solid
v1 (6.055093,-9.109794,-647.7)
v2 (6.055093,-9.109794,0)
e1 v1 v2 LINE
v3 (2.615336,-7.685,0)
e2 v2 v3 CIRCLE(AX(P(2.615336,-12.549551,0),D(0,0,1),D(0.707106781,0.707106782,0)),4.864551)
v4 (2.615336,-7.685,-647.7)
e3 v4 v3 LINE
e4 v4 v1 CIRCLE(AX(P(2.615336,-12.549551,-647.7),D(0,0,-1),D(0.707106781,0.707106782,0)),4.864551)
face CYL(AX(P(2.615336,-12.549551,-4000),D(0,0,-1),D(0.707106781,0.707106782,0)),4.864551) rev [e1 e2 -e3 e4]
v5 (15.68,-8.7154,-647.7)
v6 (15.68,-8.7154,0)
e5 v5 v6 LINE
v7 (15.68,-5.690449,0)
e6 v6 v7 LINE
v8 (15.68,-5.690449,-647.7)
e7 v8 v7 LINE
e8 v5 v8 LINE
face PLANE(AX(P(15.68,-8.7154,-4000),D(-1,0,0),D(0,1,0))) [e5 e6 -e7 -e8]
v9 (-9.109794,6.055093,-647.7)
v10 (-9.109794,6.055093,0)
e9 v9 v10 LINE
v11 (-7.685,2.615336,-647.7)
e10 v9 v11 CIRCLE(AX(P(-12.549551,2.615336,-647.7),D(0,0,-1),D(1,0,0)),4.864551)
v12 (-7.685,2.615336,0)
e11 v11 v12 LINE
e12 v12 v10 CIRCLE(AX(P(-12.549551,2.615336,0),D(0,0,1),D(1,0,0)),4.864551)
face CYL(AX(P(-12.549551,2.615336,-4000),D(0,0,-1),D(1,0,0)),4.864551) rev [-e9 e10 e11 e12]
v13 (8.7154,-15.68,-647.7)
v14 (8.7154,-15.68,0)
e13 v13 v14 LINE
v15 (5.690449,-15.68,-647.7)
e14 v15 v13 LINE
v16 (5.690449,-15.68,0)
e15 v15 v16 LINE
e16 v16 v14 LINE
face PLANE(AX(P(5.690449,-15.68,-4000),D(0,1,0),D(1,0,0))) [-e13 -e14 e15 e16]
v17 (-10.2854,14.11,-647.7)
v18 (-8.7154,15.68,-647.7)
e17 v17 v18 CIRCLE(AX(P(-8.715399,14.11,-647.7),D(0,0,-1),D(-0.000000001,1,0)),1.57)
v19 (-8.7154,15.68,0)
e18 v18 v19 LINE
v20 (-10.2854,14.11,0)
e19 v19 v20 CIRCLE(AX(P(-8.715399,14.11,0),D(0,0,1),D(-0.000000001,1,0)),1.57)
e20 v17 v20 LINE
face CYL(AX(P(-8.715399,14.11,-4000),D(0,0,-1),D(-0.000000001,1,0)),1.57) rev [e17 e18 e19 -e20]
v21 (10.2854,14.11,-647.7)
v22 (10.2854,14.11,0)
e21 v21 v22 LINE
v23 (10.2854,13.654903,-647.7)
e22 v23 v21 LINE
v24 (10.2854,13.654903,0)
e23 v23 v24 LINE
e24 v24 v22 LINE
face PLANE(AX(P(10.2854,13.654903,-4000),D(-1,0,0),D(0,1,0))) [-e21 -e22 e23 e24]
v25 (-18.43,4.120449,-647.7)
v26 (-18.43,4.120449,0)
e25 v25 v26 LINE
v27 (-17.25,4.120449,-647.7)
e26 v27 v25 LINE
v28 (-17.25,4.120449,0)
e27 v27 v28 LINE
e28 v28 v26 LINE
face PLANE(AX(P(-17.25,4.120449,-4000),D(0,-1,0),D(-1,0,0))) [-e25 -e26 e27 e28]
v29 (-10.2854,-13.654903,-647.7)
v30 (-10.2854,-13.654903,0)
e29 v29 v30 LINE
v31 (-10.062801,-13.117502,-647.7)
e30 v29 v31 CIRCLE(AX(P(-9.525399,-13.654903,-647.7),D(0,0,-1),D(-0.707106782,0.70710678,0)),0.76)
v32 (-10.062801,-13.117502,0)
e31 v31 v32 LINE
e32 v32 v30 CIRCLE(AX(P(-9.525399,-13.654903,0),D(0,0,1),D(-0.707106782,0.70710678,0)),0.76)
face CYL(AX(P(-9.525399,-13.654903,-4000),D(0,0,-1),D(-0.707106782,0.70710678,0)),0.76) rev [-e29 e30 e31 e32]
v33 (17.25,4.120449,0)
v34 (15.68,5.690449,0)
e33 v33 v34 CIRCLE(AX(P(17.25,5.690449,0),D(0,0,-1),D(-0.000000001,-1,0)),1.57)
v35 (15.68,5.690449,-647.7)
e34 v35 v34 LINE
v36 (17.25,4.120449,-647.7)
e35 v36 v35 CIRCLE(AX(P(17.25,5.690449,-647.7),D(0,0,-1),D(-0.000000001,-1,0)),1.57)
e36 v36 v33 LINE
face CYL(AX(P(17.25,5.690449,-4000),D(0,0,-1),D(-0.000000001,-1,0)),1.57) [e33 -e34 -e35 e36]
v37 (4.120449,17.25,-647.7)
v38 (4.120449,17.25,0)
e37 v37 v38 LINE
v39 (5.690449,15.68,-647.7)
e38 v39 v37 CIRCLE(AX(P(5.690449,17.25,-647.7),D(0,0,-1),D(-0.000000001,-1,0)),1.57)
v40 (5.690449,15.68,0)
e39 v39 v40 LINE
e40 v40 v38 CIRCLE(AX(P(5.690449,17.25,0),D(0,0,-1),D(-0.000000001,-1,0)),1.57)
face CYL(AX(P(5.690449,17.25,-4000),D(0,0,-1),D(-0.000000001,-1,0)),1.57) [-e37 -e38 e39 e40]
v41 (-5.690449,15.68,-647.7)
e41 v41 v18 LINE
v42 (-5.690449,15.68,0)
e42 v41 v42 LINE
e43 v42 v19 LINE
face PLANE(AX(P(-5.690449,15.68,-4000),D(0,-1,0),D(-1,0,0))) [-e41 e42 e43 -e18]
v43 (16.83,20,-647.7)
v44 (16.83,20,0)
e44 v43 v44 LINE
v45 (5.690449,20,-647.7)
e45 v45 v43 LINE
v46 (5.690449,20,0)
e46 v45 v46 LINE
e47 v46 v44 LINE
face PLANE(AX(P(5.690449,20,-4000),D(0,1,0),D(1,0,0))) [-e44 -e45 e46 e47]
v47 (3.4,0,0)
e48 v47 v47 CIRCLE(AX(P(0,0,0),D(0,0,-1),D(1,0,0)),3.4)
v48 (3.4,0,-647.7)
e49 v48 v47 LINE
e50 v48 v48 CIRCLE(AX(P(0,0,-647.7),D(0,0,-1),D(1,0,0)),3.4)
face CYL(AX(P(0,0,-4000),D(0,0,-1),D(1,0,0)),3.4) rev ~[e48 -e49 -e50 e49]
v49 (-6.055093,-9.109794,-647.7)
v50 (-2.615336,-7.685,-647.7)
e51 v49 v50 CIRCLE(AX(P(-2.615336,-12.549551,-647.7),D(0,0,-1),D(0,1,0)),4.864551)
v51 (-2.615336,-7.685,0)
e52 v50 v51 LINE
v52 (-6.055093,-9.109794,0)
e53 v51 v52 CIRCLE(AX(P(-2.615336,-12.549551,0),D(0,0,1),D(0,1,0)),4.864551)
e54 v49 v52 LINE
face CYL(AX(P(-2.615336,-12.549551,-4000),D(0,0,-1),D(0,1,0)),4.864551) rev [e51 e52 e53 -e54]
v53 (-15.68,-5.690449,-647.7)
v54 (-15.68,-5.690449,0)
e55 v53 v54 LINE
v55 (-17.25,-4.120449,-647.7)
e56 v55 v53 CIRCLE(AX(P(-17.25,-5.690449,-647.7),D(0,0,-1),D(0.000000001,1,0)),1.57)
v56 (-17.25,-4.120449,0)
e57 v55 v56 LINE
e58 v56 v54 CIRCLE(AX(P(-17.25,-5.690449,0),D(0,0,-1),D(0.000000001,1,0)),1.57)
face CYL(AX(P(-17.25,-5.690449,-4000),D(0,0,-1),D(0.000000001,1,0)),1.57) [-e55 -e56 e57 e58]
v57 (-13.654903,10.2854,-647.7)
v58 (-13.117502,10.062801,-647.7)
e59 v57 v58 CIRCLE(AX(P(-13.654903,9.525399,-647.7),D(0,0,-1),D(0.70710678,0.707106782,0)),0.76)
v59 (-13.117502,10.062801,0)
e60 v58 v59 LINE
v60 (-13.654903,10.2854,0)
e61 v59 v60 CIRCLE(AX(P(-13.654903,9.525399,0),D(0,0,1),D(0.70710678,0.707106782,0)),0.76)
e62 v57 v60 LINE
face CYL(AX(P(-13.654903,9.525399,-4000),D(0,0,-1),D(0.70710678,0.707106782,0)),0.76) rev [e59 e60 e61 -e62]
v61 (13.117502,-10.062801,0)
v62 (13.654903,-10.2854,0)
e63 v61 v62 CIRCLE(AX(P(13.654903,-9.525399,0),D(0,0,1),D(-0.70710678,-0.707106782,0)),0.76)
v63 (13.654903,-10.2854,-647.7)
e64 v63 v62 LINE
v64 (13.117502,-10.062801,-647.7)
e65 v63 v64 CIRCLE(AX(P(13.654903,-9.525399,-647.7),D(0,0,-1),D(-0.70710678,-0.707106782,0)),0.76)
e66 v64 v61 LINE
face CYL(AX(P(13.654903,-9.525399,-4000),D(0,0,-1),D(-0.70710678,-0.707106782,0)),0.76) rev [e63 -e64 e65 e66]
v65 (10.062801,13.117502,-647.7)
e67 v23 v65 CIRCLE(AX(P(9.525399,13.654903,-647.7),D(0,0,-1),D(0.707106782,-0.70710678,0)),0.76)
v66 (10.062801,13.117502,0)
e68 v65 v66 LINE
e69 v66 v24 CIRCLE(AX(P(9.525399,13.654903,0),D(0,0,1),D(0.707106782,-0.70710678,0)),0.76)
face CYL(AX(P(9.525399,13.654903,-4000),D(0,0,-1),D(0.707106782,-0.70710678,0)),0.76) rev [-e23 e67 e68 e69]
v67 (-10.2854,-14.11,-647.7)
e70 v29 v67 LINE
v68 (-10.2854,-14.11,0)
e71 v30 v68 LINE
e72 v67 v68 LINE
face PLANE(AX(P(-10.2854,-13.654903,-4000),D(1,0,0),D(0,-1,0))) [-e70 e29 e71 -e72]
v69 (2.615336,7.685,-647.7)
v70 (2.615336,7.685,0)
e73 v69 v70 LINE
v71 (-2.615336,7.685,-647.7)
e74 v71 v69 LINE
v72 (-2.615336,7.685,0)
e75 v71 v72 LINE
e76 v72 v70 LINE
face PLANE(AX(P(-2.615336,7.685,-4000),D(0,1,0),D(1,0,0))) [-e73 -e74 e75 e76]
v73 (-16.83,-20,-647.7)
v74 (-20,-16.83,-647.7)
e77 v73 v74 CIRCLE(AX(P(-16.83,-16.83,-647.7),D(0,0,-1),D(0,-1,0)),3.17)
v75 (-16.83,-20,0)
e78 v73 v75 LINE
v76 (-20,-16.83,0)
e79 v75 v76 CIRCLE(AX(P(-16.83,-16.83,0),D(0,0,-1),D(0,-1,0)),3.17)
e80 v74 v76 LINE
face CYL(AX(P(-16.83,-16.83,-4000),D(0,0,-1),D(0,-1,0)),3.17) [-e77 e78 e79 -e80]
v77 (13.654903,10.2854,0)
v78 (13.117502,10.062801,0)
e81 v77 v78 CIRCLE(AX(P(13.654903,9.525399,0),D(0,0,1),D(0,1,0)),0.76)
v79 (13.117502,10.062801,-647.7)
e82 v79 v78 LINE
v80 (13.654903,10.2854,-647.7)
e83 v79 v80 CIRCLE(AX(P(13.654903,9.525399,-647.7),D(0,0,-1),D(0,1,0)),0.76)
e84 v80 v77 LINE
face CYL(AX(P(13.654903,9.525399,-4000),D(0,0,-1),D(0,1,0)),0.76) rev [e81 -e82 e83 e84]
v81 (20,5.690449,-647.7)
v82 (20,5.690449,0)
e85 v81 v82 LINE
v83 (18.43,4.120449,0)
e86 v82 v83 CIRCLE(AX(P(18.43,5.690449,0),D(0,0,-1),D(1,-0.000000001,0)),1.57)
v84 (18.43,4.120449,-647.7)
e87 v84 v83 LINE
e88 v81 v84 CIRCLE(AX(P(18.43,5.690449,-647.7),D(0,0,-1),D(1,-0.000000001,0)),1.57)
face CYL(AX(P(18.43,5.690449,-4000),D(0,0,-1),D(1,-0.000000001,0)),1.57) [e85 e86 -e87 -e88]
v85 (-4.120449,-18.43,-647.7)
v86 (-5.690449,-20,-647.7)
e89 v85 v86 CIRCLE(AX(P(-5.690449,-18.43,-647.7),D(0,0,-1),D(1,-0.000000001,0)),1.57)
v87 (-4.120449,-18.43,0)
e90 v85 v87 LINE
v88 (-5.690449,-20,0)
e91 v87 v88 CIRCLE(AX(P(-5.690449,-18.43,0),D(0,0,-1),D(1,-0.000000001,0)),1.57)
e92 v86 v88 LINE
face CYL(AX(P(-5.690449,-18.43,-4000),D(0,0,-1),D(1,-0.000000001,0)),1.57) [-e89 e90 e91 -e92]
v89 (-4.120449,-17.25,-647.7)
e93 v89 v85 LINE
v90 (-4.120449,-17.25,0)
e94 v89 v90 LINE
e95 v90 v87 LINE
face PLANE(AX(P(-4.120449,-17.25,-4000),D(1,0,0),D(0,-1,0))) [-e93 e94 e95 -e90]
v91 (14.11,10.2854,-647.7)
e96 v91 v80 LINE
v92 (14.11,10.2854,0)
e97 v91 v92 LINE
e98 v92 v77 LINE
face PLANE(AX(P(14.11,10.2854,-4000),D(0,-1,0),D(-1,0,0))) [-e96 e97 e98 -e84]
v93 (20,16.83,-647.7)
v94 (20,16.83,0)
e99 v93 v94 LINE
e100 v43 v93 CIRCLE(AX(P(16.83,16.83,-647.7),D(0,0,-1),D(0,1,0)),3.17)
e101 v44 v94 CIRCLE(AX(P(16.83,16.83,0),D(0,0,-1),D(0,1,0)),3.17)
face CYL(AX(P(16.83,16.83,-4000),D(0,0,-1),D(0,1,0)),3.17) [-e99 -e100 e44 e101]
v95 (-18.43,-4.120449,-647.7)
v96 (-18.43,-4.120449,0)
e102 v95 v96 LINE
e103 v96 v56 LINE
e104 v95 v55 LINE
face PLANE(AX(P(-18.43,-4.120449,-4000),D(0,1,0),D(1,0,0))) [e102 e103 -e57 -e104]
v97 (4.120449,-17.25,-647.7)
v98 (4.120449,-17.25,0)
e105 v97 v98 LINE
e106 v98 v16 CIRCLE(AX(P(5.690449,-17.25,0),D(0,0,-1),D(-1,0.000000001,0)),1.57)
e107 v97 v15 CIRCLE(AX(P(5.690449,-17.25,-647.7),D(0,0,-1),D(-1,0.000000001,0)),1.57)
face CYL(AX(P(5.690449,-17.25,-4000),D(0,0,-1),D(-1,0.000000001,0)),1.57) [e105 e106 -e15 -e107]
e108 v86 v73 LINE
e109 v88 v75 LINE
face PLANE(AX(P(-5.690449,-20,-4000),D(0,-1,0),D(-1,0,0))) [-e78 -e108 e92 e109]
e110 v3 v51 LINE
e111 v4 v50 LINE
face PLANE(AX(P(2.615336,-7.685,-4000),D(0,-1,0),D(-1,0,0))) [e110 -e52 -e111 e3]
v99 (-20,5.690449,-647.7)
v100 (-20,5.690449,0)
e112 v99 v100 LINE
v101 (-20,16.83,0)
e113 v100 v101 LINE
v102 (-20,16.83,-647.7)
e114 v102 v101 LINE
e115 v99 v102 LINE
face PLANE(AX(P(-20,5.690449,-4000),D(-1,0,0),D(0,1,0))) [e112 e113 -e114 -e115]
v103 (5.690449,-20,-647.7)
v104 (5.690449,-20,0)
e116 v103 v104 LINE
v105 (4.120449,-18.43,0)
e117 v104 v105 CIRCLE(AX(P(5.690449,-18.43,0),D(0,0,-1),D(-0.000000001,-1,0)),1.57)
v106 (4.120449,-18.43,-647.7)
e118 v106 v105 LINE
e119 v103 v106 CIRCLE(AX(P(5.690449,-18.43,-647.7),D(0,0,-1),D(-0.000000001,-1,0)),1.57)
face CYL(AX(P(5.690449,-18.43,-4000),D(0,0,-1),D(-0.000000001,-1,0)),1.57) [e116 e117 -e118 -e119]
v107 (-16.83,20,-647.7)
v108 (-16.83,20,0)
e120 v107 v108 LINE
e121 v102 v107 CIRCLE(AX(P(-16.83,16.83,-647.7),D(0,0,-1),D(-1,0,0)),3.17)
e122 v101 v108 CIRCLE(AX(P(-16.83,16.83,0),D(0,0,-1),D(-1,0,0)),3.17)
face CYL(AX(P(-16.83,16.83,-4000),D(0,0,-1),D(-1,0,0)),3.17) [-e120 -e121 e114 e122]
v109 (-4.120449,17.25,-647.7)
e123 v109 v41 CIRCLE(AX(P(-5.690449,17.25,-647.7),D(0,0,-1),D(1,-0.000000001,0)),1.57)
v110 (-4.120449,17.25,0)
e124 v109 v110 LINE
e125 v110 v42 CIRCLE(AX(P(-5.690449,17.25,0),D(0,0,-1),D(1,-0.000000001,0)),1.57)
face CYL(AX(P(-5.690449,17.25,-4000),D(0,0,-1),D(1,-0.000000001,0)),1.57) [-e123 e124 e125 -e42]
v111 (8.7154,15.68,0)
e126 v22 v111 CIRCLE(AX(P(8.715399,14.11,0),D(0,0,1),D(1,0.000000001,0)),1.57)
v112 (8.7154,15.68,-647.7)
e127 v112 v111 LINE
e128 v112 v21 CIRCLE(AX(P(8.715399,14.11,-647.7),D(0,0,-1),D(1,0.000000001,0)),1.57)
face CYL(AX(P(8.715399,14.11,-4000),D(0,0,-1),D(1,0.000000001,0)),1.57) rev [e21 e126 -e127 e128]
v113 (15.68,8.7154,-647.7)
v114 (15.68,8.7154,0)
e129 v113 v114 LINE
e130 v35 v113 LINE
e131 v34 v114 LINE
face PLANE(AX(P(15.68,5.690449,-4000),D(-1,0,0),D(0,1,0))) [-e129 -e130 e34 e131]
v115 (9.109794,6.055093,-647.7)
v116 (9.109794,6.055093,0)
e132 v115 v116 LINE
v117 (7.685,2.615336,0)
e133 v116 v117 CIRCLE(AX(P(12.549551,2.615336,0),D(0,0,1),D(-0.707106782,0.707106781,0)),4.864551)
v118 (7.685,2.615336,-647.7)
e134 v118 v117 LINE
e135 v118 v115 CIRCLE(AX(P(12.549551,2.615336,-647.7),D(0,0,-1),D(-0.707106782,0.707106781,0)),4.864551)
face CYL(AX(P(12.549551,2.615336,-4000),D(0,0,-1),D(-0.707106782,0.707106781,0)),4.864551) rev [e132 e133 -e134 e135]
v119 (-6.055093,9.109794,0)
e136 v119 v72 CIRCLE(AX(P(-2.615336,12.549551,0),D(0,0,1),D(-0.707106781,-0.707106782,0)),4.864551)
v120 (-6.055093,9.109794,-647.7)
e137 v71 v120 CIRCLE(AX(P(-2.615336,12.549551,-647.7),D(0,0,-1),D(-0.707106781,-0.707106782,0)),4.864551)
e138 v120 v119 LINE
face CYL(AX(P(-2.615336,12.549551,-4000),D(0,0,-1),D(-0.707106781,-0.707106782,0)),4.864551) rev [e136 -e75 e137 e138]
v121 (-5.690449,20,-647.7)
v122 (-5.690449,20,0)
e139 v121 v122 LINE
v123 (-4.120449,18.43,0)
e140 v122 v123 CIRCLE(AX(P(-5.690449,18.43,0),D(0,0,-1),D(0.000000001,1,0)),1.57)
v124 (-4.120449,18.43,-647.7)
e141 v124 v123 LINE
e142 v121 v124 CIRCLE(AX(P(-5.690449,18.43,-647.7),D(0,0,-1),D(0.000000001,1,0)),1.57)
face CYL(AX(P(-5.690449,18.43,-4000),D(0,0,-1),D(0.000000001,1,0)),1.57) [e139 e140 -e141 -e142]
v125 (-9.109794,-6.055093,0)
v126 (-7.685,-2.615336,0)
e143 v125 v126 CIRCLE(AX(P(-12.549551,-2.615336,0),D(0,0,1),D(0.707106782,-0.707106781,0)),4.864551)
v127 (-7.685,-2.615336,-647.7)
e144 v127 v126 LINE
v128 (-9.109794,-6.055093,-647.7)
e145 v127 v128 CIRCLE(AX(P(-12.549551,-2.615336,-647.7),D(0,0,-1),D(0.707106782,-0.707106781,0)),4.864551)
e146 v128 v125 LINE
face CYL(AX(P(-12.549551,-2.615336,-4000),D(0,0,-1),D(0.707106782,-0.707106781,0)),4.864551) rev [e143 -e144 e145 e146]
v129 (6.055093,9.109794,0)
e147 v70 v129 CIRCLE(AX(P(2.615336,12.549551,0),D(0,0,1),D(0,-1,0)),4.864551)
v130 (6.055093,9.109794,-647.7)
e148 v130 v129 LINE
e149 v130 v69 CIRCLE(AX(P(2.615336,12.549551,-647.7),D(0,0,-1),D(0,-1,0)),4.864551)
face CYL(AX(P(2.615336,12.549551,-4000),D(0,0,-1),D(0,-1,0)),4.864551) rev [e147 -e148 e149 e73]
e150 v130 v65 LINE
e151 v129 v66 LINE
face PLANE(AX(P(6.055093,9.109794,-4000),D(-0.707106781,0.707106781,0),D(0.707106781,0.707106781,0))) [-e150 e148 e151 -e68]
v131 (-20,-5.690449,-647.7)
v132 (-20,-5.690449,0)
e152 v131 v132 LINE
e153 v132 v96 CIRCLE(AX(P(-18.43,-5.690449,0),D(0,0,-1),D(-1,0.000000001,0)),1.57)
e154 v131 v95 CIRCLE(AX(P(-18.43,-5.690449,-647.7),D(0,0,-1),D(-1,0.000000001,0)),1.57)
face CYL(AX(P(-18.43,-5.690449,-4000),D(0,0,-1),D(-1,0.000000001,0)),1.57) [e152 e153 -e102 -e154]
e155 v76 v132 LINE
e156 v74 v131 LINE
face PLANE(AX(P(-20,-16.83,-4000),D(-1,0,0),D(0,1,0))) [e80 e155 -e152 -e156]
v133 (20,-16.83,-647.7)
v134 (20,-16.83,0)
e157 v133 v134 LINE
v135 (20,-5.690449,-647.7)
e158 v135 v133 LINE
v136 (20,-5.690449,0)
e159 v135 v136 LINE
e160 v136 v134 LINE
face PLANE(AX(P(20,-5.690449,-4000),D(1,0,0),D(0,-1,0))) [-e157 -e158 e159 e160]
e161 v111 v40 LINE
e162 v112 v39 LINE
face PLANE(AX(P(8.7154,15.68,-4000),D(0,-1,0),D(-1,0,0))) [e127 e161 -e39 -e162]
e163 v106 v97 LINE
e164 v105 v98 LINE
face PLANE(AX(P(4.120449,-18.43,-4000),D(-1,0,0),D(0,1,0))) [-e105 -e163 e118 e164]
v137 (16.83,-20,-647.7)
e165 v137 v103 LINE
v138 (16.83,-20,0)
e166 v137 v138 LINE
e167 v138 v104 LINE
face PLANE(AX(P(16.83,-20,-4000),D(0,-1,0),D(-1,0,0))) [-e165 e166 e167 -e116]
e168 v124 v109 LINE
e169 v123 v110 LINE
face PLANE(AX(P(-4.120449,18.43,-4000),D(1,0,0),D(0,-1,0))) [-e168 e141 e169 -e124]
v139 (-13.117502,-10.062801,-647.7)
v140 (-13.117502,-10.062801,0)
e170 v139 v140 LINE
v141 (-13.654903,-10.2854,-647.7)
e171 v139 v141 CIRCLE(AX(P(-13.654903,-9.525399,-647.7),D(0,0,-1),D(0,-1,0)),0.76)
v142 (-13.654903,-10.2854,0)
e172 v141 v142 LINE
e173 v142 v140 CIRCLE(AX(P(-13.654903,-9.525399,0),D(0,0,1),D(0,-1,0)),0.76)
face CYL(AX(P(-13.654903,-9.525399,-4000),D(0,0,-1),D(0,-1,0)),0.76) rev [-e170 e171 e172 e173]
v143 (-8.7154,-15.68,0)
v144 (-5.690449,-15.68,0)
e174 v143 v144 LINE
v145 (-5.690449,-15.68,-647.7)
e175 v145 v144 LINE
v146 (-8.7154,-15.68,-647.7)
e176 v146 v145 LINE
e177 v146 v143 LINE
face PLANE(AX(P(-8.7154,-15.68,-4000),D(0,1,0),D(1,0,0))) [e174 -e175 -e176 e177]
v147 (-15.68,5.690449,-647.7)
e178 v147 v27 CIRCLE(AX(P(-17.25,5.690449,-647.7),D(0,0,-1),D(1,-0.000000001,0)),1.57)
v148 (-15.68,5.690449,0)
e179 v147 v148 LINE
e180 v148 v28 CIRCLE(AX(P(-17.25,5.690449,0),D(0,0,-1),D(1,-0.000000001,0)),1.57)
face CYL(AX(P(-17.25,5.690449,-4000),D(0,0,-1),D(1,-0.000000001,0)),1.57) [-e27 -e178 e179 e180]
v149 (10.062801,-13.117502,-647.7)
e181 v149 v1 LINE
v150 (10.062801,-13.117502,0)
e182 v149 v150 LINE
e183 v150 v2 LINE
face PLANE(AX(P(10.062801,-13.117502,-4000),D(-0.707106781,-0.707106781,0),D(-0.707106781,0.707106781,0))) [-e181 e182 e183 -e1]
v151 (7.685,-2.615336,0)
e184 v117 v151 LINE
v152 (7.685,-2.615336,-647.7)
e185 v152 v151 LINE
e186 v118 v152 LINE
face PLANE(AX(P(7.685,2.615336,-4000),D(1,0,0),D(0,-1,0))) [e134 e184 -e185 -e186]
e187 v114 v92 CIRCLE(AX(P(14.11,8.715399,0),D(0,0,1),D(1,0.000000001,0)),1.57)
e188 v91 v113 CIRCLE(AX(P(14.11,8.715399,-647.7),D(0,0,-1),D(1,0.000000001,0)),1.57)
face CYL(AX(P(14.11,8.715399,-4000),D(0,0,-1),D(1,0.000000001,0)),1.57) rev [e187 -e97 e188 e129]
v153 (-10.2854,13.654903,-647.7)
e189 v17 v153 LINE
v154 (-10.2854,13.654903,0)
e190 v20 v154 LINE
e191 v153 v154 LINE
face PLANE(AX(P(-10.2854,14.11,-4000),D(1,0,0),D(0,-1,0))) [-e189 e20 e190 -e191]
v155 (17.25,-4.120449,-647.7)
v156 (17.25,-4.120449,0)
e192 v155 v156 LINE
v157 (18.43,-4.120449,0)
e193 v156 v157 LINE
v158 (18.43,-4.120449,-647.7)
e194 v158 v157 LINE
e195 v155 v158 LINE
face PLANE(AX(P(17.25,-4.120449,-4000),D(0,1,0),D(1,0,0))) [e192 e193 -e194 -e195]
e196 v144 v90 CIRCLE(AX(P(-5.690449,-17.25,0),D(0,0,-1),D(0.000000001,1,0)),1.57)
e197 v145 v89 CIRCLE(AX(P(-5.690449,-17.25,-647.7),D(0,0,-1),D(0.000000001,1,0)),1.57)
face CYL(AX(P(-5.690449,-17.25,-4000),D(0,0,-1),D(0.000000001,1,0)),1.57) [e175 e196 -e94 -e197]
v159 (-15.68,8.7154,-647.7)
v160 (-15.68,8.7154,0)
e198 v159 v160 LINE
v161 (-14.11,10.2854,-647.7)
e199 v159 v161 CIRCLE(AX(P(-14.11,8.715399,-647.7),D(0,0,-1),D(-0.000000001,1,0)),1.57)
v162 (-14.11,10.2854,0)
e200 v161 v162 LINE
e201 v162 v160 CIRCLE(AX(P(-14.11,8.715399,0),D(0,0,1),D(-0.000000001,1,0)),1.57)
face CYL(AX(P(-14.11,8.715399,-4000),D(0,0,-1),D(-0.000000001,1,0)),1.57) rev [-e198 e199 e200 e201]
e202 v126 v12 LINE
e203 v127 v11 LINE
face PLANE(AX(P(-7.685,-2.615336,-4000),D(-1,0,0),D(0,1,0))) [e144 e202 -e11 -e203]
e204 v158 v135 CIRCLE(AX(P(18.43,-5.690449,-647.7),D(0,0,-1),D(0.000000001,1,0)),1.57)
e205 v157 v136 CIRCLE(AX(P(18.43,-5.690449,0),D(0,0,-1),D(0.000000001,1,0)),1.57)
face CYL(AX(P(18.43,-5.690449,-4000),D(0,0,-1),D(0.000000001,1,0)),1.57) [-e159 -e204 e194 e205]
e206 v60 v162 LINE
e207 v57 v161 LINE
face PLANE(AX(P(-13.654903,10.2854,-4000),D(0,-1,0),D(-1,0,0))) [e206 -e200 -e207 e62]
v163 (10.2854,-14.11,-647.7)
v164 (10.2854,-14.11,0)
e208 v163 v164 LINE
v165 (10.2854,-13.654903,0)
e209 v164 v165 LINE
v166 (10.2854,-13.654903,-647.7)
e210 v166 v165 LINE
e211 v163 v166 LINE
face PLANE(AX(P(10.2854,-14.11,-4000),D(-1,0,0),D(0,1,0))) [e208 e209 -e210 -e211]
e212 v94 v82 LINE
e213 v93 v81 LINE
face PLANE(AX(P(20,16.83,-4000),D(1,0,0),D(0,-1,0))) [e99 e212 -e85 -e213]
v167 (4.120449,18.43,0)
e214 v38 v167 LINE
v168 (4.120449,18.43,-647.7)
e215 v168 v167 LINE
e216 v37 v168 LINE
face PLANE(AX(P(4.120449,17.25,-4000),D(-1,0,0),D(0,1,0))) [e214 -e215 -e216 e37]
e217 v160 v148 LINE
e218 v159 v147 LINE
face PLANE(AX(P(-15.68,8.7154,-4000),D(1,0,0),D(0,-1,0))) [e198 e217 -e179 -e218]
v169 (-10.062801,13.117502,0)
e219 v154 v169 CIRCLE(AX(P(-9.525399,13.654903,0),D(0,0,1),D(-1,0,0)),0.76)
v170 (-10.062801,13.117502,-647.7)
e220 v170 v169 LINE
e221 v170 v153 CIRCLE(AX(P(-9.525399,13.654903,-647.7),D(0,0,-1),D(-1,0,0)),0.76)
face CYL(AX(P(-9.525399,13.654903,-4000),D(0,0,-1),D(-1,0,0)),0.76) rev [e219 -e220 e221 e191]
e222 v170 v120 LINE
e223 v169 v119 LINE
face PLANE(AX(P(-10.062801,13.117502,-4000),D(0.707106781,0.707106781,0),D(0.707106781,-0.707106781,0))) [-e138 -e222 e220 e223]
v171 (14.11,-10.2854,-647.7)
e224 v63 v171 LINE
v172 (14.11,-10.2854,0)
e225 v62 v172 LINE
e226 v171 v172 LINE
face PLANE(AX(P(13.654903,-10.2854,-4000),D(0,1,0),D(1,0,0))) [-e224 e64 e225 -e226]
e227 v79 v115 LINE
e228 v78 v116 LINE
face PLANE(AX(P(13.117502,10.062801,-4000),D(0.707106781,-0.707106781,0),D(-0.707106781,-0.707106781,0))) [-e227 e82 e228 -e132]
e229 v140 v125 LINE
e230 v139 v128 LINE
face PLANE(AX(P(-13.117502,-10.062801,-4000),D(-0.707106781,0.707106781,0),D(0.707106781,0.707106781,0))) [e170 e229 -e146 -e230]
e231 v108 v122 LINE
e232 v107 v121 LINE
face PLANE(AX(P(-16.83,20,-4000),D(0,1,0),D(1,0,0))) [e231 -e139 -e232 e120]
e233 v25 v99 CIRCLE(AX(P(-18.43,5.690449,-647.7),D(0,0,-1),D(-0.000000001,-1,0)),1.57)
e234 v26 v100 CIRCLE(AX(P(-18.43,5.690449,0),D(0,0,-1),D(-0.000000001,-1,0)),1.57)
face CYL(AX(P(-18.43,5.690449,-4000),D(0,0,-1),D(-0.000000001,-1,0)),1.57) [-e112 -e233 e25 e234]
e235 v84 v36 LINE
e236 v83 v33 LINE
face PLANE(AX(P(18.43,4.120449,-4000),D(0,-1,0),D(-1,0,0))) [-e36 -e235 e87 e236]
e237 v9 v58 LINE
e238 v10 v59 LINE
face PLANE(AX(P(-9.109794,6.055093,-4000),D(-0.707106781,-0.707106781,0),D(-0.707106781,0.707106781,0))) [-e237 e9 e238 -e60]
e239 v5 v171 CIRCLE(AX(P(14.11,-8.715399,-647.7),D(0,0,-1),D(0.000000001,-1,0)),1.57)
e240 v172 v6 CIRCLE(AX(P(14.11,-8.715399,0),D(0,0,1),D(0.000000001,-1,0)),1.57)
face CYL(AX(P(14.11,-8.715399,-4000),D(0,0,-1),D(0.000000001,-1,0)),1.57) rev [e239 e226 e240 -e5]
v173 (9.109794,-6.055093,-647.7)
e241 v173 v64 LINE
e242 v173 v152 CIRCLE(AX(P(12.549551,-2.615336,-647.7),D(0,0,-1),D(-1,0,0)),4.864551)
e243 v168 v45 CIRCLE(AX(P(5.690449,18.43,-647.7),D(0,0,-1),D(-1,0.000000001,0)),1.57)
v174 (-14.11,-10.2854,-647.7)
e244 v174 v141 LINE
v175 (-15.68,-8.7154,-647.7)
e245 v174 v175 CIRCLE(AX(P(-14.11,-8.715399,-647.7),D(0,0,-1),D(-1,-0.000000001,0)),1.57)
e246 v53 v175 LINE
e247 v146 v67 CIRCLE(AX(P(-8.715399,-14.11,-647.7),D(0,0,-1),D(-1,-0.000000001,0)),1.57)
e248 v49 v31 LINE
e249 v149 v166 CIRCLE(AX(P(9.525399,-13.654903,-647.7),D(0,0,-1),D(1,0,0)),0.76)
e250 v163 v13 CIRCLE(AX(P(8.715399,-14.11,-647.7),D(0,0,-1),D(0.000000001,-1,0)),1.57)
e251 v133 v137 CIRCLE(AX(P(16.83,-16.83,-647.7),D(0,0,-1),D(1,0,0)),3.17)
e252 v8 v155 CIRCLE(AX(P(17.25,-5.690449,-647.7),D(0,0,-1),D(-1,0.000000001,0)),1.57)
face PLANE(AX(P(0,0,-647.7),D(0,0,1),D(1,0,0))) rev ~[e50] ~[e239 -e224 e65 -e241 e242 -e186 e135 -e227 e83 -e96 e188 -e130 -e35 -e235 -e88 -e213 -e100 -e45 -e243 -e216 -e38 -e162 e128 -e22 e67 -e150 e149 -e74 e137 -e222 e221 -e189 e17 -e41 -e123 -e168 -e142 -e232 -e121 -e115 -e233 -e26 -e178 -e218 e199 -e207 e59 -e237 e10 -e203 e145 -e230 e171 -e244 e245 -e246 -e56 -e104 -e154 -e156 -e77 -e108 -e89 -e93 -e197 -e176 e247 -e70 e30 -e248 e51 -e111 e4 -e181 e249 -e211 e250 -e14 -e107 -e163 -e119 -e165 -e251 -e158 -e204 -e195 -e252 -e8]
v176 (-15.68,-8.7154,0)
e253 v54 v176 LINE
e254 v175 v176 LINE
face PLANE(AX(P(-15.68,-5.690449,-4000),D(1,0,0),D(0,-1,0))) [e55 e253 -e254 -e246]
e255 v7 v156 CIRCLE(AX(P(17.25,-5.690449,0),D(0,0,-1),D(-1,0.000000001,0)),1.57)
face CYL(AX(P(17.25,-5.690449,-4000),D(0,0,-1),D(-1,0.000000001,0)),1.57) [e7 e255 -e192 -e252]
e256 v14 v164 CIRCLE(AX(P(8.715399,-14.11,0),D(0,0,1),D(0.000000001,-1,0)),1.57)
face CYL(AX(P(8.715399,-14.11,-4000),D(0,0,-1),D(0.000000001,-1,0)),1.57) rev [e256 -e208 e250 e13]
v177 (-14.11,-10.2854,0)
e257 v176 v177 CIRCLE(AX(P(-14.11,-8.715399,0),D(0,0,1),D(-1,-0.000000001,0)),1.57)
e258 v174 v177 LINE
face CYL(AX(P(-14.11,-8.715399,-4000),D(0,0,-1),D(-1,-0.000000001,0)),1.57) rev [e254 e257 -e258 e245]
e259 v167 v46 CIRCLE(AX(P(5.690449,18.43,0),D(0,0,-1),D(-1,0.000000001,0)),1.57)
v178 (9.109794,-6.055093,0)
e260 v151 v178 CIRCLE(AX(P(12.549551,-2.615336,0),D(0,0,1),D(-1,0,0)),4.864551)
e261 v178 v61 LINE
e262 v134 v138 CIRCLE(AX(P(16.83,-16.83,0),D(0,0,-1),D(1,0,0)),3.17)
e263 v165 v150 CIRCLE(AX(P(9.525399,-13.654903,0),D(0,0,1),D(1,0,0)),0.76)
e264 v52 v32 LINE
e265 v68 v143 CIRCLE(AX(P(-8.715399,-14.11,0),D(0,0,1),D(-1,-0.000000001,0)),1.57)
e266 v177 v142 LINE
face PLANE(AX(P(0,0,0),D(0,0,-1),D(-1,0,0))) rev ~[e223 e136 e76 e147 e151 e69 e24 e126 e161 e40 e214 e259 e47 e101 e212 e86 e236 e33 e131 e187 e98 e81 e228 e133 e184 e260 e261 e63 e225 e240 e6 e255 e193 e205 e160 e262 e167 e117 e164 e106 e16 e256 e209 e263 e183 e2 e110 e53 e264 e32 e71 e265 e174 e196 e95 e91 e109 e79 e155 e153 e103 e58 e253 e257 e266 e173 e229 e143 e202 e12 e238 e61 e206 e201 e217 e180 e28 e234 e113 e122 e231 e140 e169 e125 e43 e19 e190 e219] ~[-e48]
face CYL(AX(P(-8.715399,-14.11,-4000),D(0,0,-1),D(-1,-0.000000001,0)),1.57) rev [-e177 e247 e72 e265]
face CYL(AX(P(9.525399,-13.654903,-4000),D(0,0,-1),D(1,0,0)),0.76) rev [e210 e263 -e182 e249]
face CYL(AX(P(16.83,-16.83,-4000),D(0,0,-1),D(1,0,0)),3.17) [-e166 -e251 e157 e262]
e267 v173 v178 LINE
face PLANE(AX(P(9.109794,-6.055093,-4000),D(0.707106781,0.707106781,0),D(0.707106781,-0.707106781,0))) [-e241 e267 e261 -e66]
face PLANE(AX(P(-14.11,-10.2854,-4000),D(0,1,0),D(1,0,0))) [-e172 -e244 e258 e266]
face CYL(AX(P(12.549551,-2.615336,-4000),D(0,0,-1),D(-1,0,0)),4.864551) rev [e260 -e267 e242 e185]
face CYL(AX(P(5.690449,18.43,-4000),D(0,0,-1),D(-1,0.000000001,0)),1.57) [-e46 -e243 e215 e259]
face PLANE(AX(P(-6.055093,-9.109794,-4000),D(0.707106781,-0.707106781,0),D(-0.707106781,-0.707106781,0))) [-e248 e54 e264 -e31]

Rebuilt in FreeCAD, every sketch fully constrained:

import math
import FreeCAD as App
import Part
import Sketcher

doc = App.newDocument("Part")
body = doc.addObject("PartDesign::Body", "Body")

# Sketch on XY plane
sketch1 = body.newObject("Sketcher::SketchObject", "Sketch")
sketch1.AttachmentSupport = (doc.getObject("XY_Plane"), [""])
sketch1.MapMode = "FlatFace"
sketch1.AttachmentOffset = App.Placement(App.Vector(0, 0, -4000), App.Rotation())
sketch1.addGeometry([
    Part.LineSegment(App.Vector(-16.83, 20, 0), App.Vector(-5.69, 20, 0)),  # 0
    Part.ArcOfCircle(Part.Circle(App.Vector(-5.69, 18.43, 0), App.Vector(0, 0, 1), 1.57), math.radians(0), math.radians(90)),  # 1
    Part.LineSegment(App.Vector(-4.12, 18.43, 0), App.Vector(-4.12, 17.25, 0)),  # 2
    Part.ArcOfCircle(Part.Circle(App.Vector(-5.69, 17.25, 0), App.Vector(0, 0, 1), 1.57), math.radians(-90), math.radians(0)),  # 3
    Part.LineSegment(App.Vector(-5.69, 15.68, 0), App.Vector(-8.72, 15.68, 0)),  # 4
    Part.ArcOfCircle(Part.Circle(App.Vector(-8.72, 14.11, 0), App.Vector(0, 0, 1), 1.57), math.radians(90), math.radians(180)),  # 5
    Part.LineSegment(App.Vector(-10.29, 14.11, 0), App.Vector(-10.29, 13.65, 0)),  # 6
    Part.ArcOfCircle(Part.Circle(App.Vector(-9.53, 13.65, 0), App.Vector(0, 0, 1), 0.76), math.radians(180), math.radians(225)),  # 7
    Part.LineSegment(App.Vector(-10.06, 13.12, 0), App.Vector(-6.06, 9.11, 0)),  # 8
    Part.ArcOfCircle(Part.Circle(App.Vector(-2.62, 12.55, 0), App.Vector(0, 0, 1), 4.86), math.radians(-135), math.radians(-90)),  # 9
    Part.LineSegment(App.Vector(-2.62, 7.68, 0), App.Vector(2.62, 7.68, 0)),  # 10
    Part.ArcOfCircle(Part.Circle(App.Vector(2.62, 12.55, 0), App.Vector(0, 0, 1), 4.86), math.radians(-90), math.radians(-45)),  # 11
    Part.LineSegment(App.Vector(6.06, 9.11, 0), App.Vector(10.06, 13.12, 0)),  # 12
    Part.ArcOfCircle(Part.Circle(App.Vector(9.53, 13.65, 0), App.Vector(0, 0, 1), 0.76), math.radians(-45), math.radians(0)),  # 13
    Part.LineSegment(App.Vector(10.29, 13.65, 0), App.Vector(10.29, 14.11, 0)),  # 14
    Part.ArcOfCircle(Part.Circle(App.Vector(8.72, 14.11, 0), App.Vector(0, 0, 1), 1.57), math.radians(0), math.radians(90)),  # 15
    Part.LineSegment(App.Vector(8.72, 15.68, 0), App.Vector(5.69, 15.68, 0)),  # 16
    Part.ArcOfCircle(Part.Circle(App.Vector(5.69, 17.25, 0), App.Vector(0, 0, 1), 1.57), math.radians(-180), math.radians(-90)),  # 17
    Part.LineSegment(App.Vector(4.12, 17.25, 0), App.Vector(4.12, 18.43, 0)),  # 18
    Part.ArcOfCircle(Part.Circle(App.Vector(5.69, 18.43, 0), App.Vector(0, 0, 1), 1.57), math.radians(90), math.radians(180)),  # 19
    Part.LineSegment(App.Vector(5.69, 20, 0), App.Vector(16.83, 20, 0)),  # 20
    Part.ArcOfCircle(Part.Circle(App.Vector(16.83, 16.83, 0), App.Vector(0, 0, 1), 3.17), math.radians(0), math.radians(90)),  # 21
    Part.LineSegment(App.Vector(20, 16.83, 0), App.Vector(20, 5.69, 0)),  # 22
    Part.ArcOfCircle(Part.Circle(App.Vector(18.43, 5.69, 0), App.Vector(0, 0, 1), 1.57), math.radians(-90), math.radians(0)),  # 23
    Part.LineSegment(App.Vector(18.43, 4.12, 0), App.Vector(17.25, 4.12, 0)),  # 24
    Part.ArcOfCircle(Part.Circle(App.Vector(17.25, 5.69, 0), App.Vector(0, 0, 1), 1.57), math.radians(-180), math.radians(-90)),  # 25
    Part.LineSegment(App.Vector(15.68, 5.69, 0), App.Vector(15.68, 8.72, 0)),  # 26
    Part.ArcOfCircle(Part.Circle(App.Vector(14.11, 8.72, 0), App.Vector(0, 0, 1), 1.57), math.radians(0), math.radians(90)),  # 27
    Part.LineSegment(App.Vector(14.11, 10.29, 0), App.Vector(13.65, 10.29, 0)),  # 28
    Part.ArcOfCircle(Part.Circle(App.Vector(13.65, 9.53, 0), App.Vector(0, 0, 1), 0.76), math.radians(90), math.radians(135)),  # 29
    Part.LineSegment(App.Vector(13.12, 10.06, 0), App.Vector(9.11, 6.06, 0)),  # 30
    Part.ArcOfCircle(Part.Circle(App.Vector(12.55, 2.62, 0), App.Vector(0, 0, 1), 4.86), math.radians(135), math.radians(180)),  # 31
    Part.LineSegment(App.Vector(7.68, 2.62, 0), App.Vector(7.68, -2.62, 0)),  # 32
    Part.ArcOfCircle(Part.Circle(App.Vector(12.55, -2.62, 0), App.Vector(0, 0, 1), 4.86), math.radians(-180), math.radians(-135)),  # 33
    Part.LineSegment(App.Vector(9.11, -6.06, 0), App.Vector(13.12, -10.06, 0)),  # 34
    Part.ArcOfCircle(Part.Circle(App.Vector(13.65, -9.53, 0), App.Vector(0, 0, 1), 0.76), math.radians(-135), math.radians(-90)),  # 35
    Part.LineSegment(App.Vector(13.65, -10.29, 0), App.Vector(14.11, -10.29, 0)),  # 36
    Part.ArcOfCircle(Part.Circle(App.Vector(14.11, -8.72, 0), App.Vector(0, 0, 1), 1.57), math.radians(-90), math.radians(0)),  # 37
    Part.LineSegment(App.Vector(15.68, -8.72, 0), App.Vector(15.68, -5.69, 0)),  # 38
    Part.ArcOfCircle(Part.Circle(App.Vector(17.25, -5.69, 0), App.Vector(0, 0, 1), 1.57), math.radians(90), math.radians(180)),  # 39
    Part.LineSegment(App.Vector(17.25, -4.12, 0), App.Vector(18.43, -4.12, 0)),  # 40
    Part.ArcOfCircle(Part.Circle(App.Vector(18.43, -5.69, 0), App.Vector(0, 0, 1), 1.57), math.radians(0), math.radians(90)),  # 41
    Part.LineSegment(App.Vector(20, -5.69, 0), App.Vector(20, -16.83, 0)),  # 42
    Part.ArcOfCircle(Part.Circle(App.Vector(16.83, -16.83, 0), App.Vector(0, 0, 1), 3.17), math.radians(-90), math.radians(0)),  # 43
    Part.LineSegment(App.Vector(16.83, -20, 0), App.Vector(5.69, -20, 0)),  # 44
    Part.ArcOfCircle(Part.Circle(App.Vector(5.69, -18.43, 0), App.Vector(0, 0, 1), 1.57), math.radians(-180), math.radians(-90)),  # 45
    Part.LineSegment(App.Vector(4.12, -18.43, 0), App.Vector(4.12, -17.25, 0)),  # 46
    Part.ArcOfCircle(Part.Circle(App.Vector(5.69, -17.25, 0), App.Vector(0, 0, 1), 1.57), math.radians(90), math.radians(180)),  # 47
    Part.LineSegment(App.Vector(5.69, -15.68, 0), App.Vector(8.72, -15.68, 0)),  # 48
    Part.ArcOfCircle(Part.Circle(App.Vector(8.72, -14.11, 0), App.Vector(0, 0, 1), 1.57), math.radians(-90), math.radians(0)),  # 49
    Part.LineSegment(App.Vector(10.29, -14.11, 0), App.Vector(10.29, -13.65, 0)),  # 50
    Part.ArcOfCircle(Part.Circle(App.Vector(9.53, -13.65, 0), App.Vector(0, 0, 1), 0.76), math.radians(0), math.radians(45)),  # 51
    Part.LineSegment(App.Vector(10.06, -13.12, 0), App.Vector(6.06, -9.11, 0)),  # 52
    Part.ArcOfCircle(Part.Circle(App.Vector(2.62, -12.55, 0), App.Vector(0, 0, 1), 4.86), math.radians(45), math.radians(90)),  # 53
    Part.LineSegment(App.Vector(2.62, -7.68, 0), App.Vector(-2.62, -7.68, 0)),  # 54
    Part.ArcOfCircle(Part.Circle(App.Vector(-2.62, -12.55, 0), App.Vector(0, 0, 1), 4.86), math.radians(90), math.radians(135)),  # 55
    Part.LineSegment(App.Vector(-6.06, -9.11, 0), App.Vector(-10.06, -13.12, 0)),  # 56
    Part.ArcOfCircle(Part.Circle(App.Vector(-9.53, -13.65, 0), App.Vector(0, 0, 1), 0.76), math.radians(135), math.radians(180)),  # 57
    Part.LineSegment(App.Vector(-10.29, -13.65, 0), App.Vector(-10.29, -14.11, 0)),  # 58
    Part.ArcOfCircle(Part.Circle(App.Vector(-8.72, -14.11, 0), App.Vector(0, 0, 1), 1.57), math.radians(-180), math.radians(-90)),  # 59
    Part.LineSegment(App.Vector(-8.72, -15.68, 0), App.Vector(-5.69, -15.68, 0)),  # 60
    Part.ArcOfCircle(Part.Circle(App.Vector(-5.69, -17.25, 0), App.Vector(0, 0, 1), 1.57), math.radians(0), math.radians(90)),  # 61
    Part.LineSegment(App.Vector(-4.12, -17.25, 0), App.Vector(-4.12, -18.43, 0)),  # 62
    Part.ArcOfCircle(Part.Circle(App.Vector(-5.69, -18.43, 0), App.Vector(0, 0, 1), 1.57), math.radians(-90), math.radians(0)),  # 63
    Part.LineSegment(App.Vector(-5.69, -20, 0), App.Vector(-16.83, -20, 0)),  # 64
    Part.ArcOfCircle(Part.Circle(App.Vector(-16.83, -16.83, 0), App.Vector(0, 0, 1), 3.17), math.radians(-180), math.radians(-90)),  # 65
    Part.LineSegment(App.Vector(-20, -16.83, 0), App.Vector(-20, -5.69, 0)),  # 66
    Part.ArcOfCircle(Part.Circle(App.Vector(-18.43, -5.69, 0), App.Vector(0, 0, 1), 1.57), math.radians(90), math.radians(180)),  # 67
    Part.LineSegment(App.Vector(-18.43, -4.12, 0), App.Vector(-17.25, -4.12, 0)),  # 68
    Part.ArcOfCircle(Part.Circle(App.Vector(-17.25, -5.69, 0), App.Vector(0, 0, 1), 1.57), math.radians(0), math.radians(90)),  # 69
    Part.LineSegment(App.Vector(-15.68, -5.69, 0), App.Vector(-15.68, -8.72, 0)),  # 70
    Part.ArcOfCircle(Part.Circle(App.Vector(-14.11, -8.72, 0), App.Vector(0, 0, 1), 1.57), math.radians(-180), math.radians(-90)),  # 71
    Part.LineSegment(App.Vector(-14.11, -10.29, 0), App.Vector(-13.65, -10.29, 0)),  # 72
    Part.ArcOfCircle(Part.Circle(App.Vector(-13.65, -9.53, 0), App.Vector(0, 0, 1), 0.76), math.radians(-90), math.radians(-45)),  # 73
    Part.LineSegment(App.Vector(-13.12, -10.06, 0), App.Vector(-9.11, -6.06, 0)),  # 74
    Part.ArcOfCircle(Part.Circle(App.Vector(-12.55, -2.62, 0), App.Vector(0, 0, 1), 4.86), math.radians(-45), math.radians(0)),  # 75
    Part.LineSegment(App.Vector(-7.68, -2.62, 0), App.Vector(-7.68, 2.62, 0)),  # 76
    Part.ArcOfCircle(Part.Circle(App.Vector(-12.55, 2.62, 0), App.Vector(0, 0, 1), 4.86), math.radians(0), math.radians(45)),  # 77
    Part.LineSegment(App.Vector(-9.11, 6.06, 0), App.Vector(-13.12, 10.06, 0)),  # 78
    Part.ArcOfCircle(Part.Circle(App.Vector(-13.65, 9.53, 0), App.Vector(0, 0, 1), 0.76), math.radians(45), math.radians(90)),  # 79
    Part.LineSegment(App.Vector(-13.65, 10.29, 0), App.Vector(-14.11, 10.29, 0)),  # 80
    Part.ArcOfCircle(Part.Circle(App.Vector(-14.11, 8.72, 0), App.Vector(0, 0, 1), 1.57), math.radians(90), math.radians(180)),  # 81
    Part.LineSegment(App.Vector(-15.68, 8.72, 0), App.Vector(-15.68, 5.69, 0)),  # 82
    Part.ArcOfCircle(Part.Circle(App.Vector(-17.25, 5.69, 0), App.Vector(0, 0, 1), 1.57), math.radians(-90), math.radians(0)),  # 83
    Part.LineSegment(App.Vector(-17.25, 4.12, 0), App.Vector(-18.43, 4.12, 0)),  # 84
    Part.ArcOfCircle(Part.Circle(App.Vector(-18.43, 5.69, 0), App.Vector(0, 0, 1), 1.57), math.radians(-180), math.radians(-90)),  # 85
    Part.LineSegment(App.Vector(-20, 5.69, 0), App.Vector(-20, 16.83, 0)),  # 86
    Part.ArcOfCircle(Part.Circle(App.Vector(-16.83, 16.83, 0), App.Vector(0, 0, 1), 3.17), math.radians(90), math.radians(180)),  # 87
    Part.Circle(App.Vector(0, 0, 0), App.Vector(0, 0, 1), 3.4),  # 88
], False)
sketch1.addConstraint([
    Sketcher.Constraint("Tangent", 0, 2, 1, 2),
    Sketcher.Constraint("Tangent", 1, 1, 2, 1),
    Sketcher.Constraint("Tangent", 2, 2, 3, 2),
    Sketcher.Constraint("Tangent", 3, 1, 4, 1),
    Sketcher.Constraint("Tangent", 4, 2, 5, 1),
    Sketcher.Constraint("Tangent", 5, 2, 6, 1),
    Sketcher.Constraint("Tangent", 6, 2, 7, 1),
    Sketcher.Constraint("Tangent", 7, 2, 8, 1),
    Sketcher.Constraint("Tangent", 8, 2, 9, 1),
    Sketcher.Constraint("Tangent", 9, 2, 10, 1),
    Sketcher.Constraint("Tangent", 10, 2, 11, 1),
    Sketcher.Constraint("Tangent", 11, 2, 12, 1),
    Sketcher.Constraint("Tangent", 12, 2, 13, 1),
    Sketcher.Constraint("Tangent", 13, 2, 14, 1),
    Sketcher.Constraint("Tangent", 14, 2, 15, 1),
    Sketcher.Constraint("Tangent", 15, 2, 16, 1),
    Sketcher.Constraint("Tangent", 16, 2, 17, 2),
    Sketcher.Constraint("Tangent", 17, 1, 18, 1),
    Sketcher.Constraint("Tangent", 18, 2, 19, 2),
    Sketcher.Constraint("Tangent", 19, 1, 20, 1),
    Sketcher.Constraint("Tangent", 20, 2, 21, 2),
    Sketcher.Constraint("Tangent", 21, 1, 22, 1),
    Sketcher.Constraint("Tangent", 22, 2, 23, 2),
    Sketcher.Constraint("Tangent", 23, 1, 24, 1),
    Sketcher.Constraint("Tangent", 24, 2, 25, 2),
    Sketcher.Constraint("Tangent", 25, 1, 26, 1),
    Sketcher.Constraint("Tangent", 26, 2, 27, 1),
    Sketcher.Constraint("Tangent", 27, 2, 28, 1),
    Sketcher.Constraint("Tangent", 28, 2, 29, 1),
    Sketcher.Constraint("Tangent", 29, 2, 30, 1),
    Sketcher.Constraint("Tangent", 30, 2, 31, 1),
    Sketcher.Constraint("Tangent", 31, 2, 32, 1),
    Sketcher.Constraint("Tangent", 32, 2, 33, 1),
    Sketcher.Constraint("Tangent", 33, 2, 34, 1),
    Sketcher.Constraint("Tangent", 34, 2, 35, 1),
    Sketcher.Constraint("Tangent", 35, 2, 36, 1),
    Sketcher.Constraint("Tangent", 36, 2, 37, 1),
    Sketcher.Constraint("Tangent", 37, 2, 38, 1),
    Sketcher.Constraint("Tangent", 38, 2, 39, 2),
    Sketcher.Constraint("Tangent", 39, 1, 40, 1),
    Sketcher.Constraint("Tangent", 40, 2, 41, 2),
    Sketcher.Constraint("Tangent", 41, 1, 42, 1),
    Sketcher.Constraint("Tangent", 42, 2, 43, 2),
    Sketcher.Constraint("Tangent", 43, 1, 44, 1),
    Sketcher.Constraint("Tangent", 44, 2, 45, 2),
    Sketcher.Constraint("Tangent", 45, 1, 46, 1),
    Sketcher.Constraint("Tangent", 46, 2, 47, 2),
    Sketcher.Constraint("Tangent", 47, 1, 48, 1),
    Sketcher.Constraint("Tangent", 48, 2, 49, 1),
    Sketcher.Constraint("Tangent", 49, 2, 50, 1),
    Sketcher.Constraint("Tangent", 50, 2, 51, 1),
    Sketcher.Constraint("Tangent", 51, 2, 52, 1),
    Sketcher.Constraint("Tangent", 52, 2, 53, 1),
    Sketcher.Constraint("Tangent", 53, 2, 54, 1),
    Sketcher.Constraint("Tangent", 54, 2, 55, 1),
    Sketcher.Constraint("Tangent", 55, 2, 56, 1),
    Sketcher.Constraint("Tangent", 56, 2, 57, 1),
    Sketcher.Constraint("Tangent", 57, 2, 58, 1),
    Sketcher.Constraint("Tangent", 58, 2, 59, 1),
    Sketcher.Constraint("Tangent", 59, 2, 60, 1),
    Sketcher.Constraint("Tangent", 60, 2, 61, 2),
    Sketcher.Constraint("Tangent", 61, 1, 62, 1),
    Sketcher.Constraint("Tangent", 62, 2, 63, 2),
    Sketcher.Constraint("Tangent", 63, 1, 64, 1),
    Sketcher.Constraint("Tangent", 64, 2, 65, 2),
    Sketcher.Constraint("Tangent", 65, 1, 66, 1),
    Sketcher.Constraint("Tangent", 66, 2, 67, 2),
    Sketcher.Constraint("Tangent", 67, 1, 68, 1),
    Sketcher.Constraint("Tangent", 68, 2, 69, 2),
    Sketcher.Constraint("Tangent", 69, 1, 70, 1),
    Sketcher.Constraint("Tangent", 70, 2, 71, 1),
    Sketcher.Constraint("Tangent", 71, 2, 72, 1),
    Sketcher.Constraint("Tangent", 72, 2, 73, 1),
    Sketcher.Constraint("Tangent", 73, 2, 74, 1),
    Sketcher.Constraint("Tangent", 74, 2, 75, 1),
    Sketcher.Constraint("Tangent", 75, 2, 76, 1),
    Sketcher.Constraint("Tangent", 76, 2, 77, 1),
    Sketcher.Constraint("Tangent", 77, 2, 78, 1),
    Sketcher.Constraint("Tangent", 78, 2, 79, 1),
    Sketcher.Constraint("Tangent", 79, 2, 80, 1),
    Sketcher.Constraint("Tangent", 80, 2, 81, 1),
    Sketcher.Constraint("Tangent", 81, 2, 82, 1),
    Sketcher.Constraint("Tangent", 82, 2, 83, 2),
    Sketcher.Constraint("Tangent", 83, 1, 84, 1),
    Sketcher.Constraint("Tangent", 84, 2, 85, 2),
    Sketcher.Constraint("Tangent", 85, 1, 86, 1),
    Sketcher.Constraint("Tangent", 86, 2, 87, 2),
    Sketcher.Constraint("Tangent", 87, 1, 0, 1),
    Sketcher.Constraint("Horizontal", 0),
    Sketcher.Constraint("Vertical", 2),
    Sketcher.Constraint("Horizontal", 4),
    Sketcher.Constraint("Vertical", 6),
    Sketcher.Constraint("Horizontal", 10),
    Sketcher.Constraint("Vertical", 14),
    Sketcher.Constraint("Horizontal", 16),
    Sketcher.Constraint("Vertical", 18),
    Sketcher.Constraint("Horizontal", 20),
    Sketcher.Constraint("Vertical", 22),
    Sketcher.Constraint("Horizontal", 24),
    Sketcher.Constraint("Vertical", 26),
    Sketcher.Constraint("Horizontal", 28),
    Sketcher.Constraint("Vertical", 32),
    Sketcher.Constraint("Horizontal", 36),
    Sketcher.Constraint("Vertical", 38),
    Sketcher.Constraint("Horizontal", 40),
    Sketcher.Constraint("Vertical", 42),
    Sketcher.Constraint("Horizontal", 44),
    Sketcher.Constraint("Vertical", 46),
    Sketcher.Constraint("Horizontal", 48),
    Sketcher.Constraint("Vertical", 50),
    Sketcher.Constraint("Horizontal", 54),
    Sketcher.Constraint("Vertical", 58),
    Sketcher.Constraint("Horizontal", 60),
    Sketcher.Constraint("Vertical", 62),
    Sketcher.Constraint("Horizontal", 64),
    Sketcher.Constraint("Vertical", 66),
    Sketcher.Constraint("Horizontal", 68),
    Sketcher.Constraint("Vertical", 70),
    Sketcher.Constraint("Horizontal", 72),
    Sketcher.Constraint("Vertical", 76),
    Sketcher.Constraint("Horizontal", 80),
    Sketcher.Constraint("Vertical", 82),
    Sketcher.Constraint("Horizontal", 84),
    Sketcher.Constraint("Vertical", 86),
    Sketcher.Constraint("Coincident", 88, 3, -1, 1),
    Sketcher.Constraint("Equal", 1, 3),
    Sketcher.Constraint("Equal", 3, 5),
    Sketcher.Constraint("Equal", 9, 11),
    Sketcher.Constraint("Equal", 7, 13),
    Sketcher.Constraint("Equal", 5, 15),
    Sketcher.Constraint("Equal", 15, 17),
    Sketcher.Constraint("Equal", 17, 19),
    Sketcher.Constraint("Equal", 19, 23),
    Sketcher.Constraint("Equal", 23, 25),
    Sketcher.Constraint("Equal", 25, 27),
    Sketcher.Constraint("Equal", 13, 29),
    Sketcher.Constraint("Equal", 11, 31),
    Sketcher.Constraint("Equal", 31, 33),
    Sketcher.Constraint("Equal", 29, 35),
    Sketcher.Constraint("Equal", 27, 37),
    Sketcher.Constraint("Equal", 37, 39),
    Sketcher.Constraint("Equal", 39, 41),
    Sketcher.Constraint("Equal", 21, 43),
    Sketcher.Constraint("Equal", 41, 45),
    Sketcher.Constraint("Equal", 45, 47),
    Sketcher.Constraint("Equal", 47, 49),
    Sketcher.Constraint("Equal", 35, 51),
    Sketcher.Constraint("Equal", 33, 53),
    Sketcher.Constraint("Equal", 53, 55),
    Sketcher.Constraint("Equal", 51, 57),
    Sketcher.Constraint("Equal", 49, 59),
    Sketcher.Constraint("Equal", 59, 61),
    Sketcher.Constraint("Equal", 61, 63),
    Sketcher.Constraint("Equal", 43, 65),
    Sketcher.Constraint("Equal", 63, 67),
    Sketcher.Constraint("Equal", 67, 69),
    Sketcher.Constraint("Equal", 69, 71),
    Sketcher.Constraint("Equal", 57, 73),
    Sketcher.Constraint("Equal", 55, 75),
    Sketcher.Constraint("Equal", 75, 77),
    Sketcher.Constraint("Equal", 73, 79),
    Sketcher.Constraint("Equal", 71, 81),
    Sketcher.Constraint("Equal", 81, 83),
    Sketcher.Constraint("Equal", 83, 85),
    Sketcher.Constraint("Equal", 65, 87),
    Sketcher.Constraint("Symmetric", 1, 3, 45, 3, -1, 1),
    Sketcher.Constraint("Symmetric", 5, 3, 49, 3, -1, 1),
    Sketcher.Constraint("Symmetric", 9, 3, 53, 3, -1, 1),
    Sketcher.Constraint("Symmetric", 13, 3, 57, 3, -1, 1),
    Sketcher.Constraint("Symmetric", 17, 3, 61, 3, -1, 1),
    Sketcher.Constraint("Symmetric", 21, 3, 65, 3, -1, 1),
    Sketcher.Constraint("Symmetric", 25, 3, 69, 3, -1, 1),
    Sketcher.Constraint("Symmetric", 29, 3, 73, 3, -1, 1),
    Sketcher.Constraint("Symmetric", 31, 3, 75, 3, -1, 1),
    Sketcher.Constraint("Symmetric", 35, 3, 79, 3, -1, 1),
    Sketcher.Constraint("Symmetric", 39, 3, 83, 3, -1, 1),
    Sketcher.Constraint("Symmetric", 7, 3, 13, 3, -2),
    Sketcher.Constraint("Symmetric", 3, 3, 17, 3, -2),
    Sketcher.Constraint("Symmetric", 43, 3, 65, 3, -2),
    Sketcher.Constraint("Symmetric", 39, 3, 69, 3, -2),
    Sketcher.Constraint("Symmetric", 35, 3, 73, 3, -2),
    Sketcher.Constraint("Symmetric", 52, 2, 55, 2, -2),
    Sketcher.Constraint("Perpendicular", 8, 12),
    Sketcher.Constraint("Parallel", 12, 30),
    Sketcher.Constraint("Perpendicular", 30, 34),
    Sketcher.Constraint("Perpendicular", 52, 56),
    Sketcher.Constraint("Perpendicular", 74, 78),
    Sketcher.Constraint("Vertical", 67, 3, 85, 3),
    Sketcher.Constraint("Equal", 84, 2),
    Sketcher.Constraint("Equal", 80, 6),
    Sketcher.Constraint("Equal", 64, 22),
    Sketcher.Constraint("Equal", 60, 26),
    Sketcher.Constraint("Equal", 54, 32),
    Sketcher.Constraint("Equal", 12, 30),
    Sketcher.Constraint("Diameter", 88, 6.8),
    Sketcher.Constraint("Radius", 1, 1.57),
    Sketcher.Constraint("Radius", 7, 0.76),
    Sketcher.Constraint("Radius", 21, 3.17),
    Sketcher.Constraint("DistanceY", -1, 1, 0, 2, 20.0),
    Sketcher.Constraint("DistanceX", 24, 2, 24, 1, 1.18),
    Sketcher.Constraint("Radius", 9, 4.864551),
    Sketcher.Constraint("DistanceY", -1, 1, 9, 2, 7.685),
    Sketcher.Constraint("DistanceX", 0, 1, 0, 2, 11.139551),
    Sketcher.Constraint("DistanceX", 4, 2, 4, 1, 3.02495),
    Sketcher.Constraint("DistanceX", 10, 1, 10, 2, 5.230671),
])
pad1 = body.newObject("PartDesign::Pad", "Pad")
pad1.Profile = sketch1
pad1.Length = 4000

# Sketch on XY plane
sketch2 = body.newObject("Sketcher::SketchObject", "Sketch001")
sketch2.AttachmentSupport = (doc.getObject("XY_Plane"), [""])
sketch2.MapMode = "FlatFace"
sketch2.AttachmentOffset = App.Placement(App.Vector(0, 0, -647.7), App.Rotation())
sketch2.addGeometry([
    Part.LineSegment(App.Vector(-120, 91, 0), App.Vector(-120, -91, 0)),
    Part.LineSegment(App.Vector(-120, -91, 0), App.Vector(120, -91, 0)),
    Part.LineSegment(App.Vector(120, -91, 0), App.Vector(120, 91, 0)),
    Part.LineSegment(App.Vector(120, 91, 0), App.Vector(-120, 91, 0)),
], False)
sketch2.addConstraint([
    Sketcher.Constraint("Coincident", 0, 2, 1, 1),
    Sketcher.Constraint("Coincident", 1, 2, 2, 1),
    Sketcher.Constraint("Coincident", 2, 2, 3, 1),
    Sketcher.Constraint("Coincident", 3, 2, 0, 1),
    Sketcher.Constraint("Vertical", 0),
    Sketcher.Constraint("Horizontal", 1),
    Sketcher.Constraint("Vertical", 2),
    Sketcher.Constraint("Horizontal", 3),
    Sketcher.Constraint("Symmetric", 0, 2, 2, 2, -1, 1),
    Sketcher.Constraint("DistanceX", 1, 1, 1, 2, 240.449275),
    Sketcher.Constraint("DistanceY", 0, 2, 0, 1, 182.715754),
])
pocket1 = body.newObject("PartDesign::Pocket", "Pocket")
pocket1.Profile = sketch2
pocket1.Type = "ThroughAll"

doc.recompute()
